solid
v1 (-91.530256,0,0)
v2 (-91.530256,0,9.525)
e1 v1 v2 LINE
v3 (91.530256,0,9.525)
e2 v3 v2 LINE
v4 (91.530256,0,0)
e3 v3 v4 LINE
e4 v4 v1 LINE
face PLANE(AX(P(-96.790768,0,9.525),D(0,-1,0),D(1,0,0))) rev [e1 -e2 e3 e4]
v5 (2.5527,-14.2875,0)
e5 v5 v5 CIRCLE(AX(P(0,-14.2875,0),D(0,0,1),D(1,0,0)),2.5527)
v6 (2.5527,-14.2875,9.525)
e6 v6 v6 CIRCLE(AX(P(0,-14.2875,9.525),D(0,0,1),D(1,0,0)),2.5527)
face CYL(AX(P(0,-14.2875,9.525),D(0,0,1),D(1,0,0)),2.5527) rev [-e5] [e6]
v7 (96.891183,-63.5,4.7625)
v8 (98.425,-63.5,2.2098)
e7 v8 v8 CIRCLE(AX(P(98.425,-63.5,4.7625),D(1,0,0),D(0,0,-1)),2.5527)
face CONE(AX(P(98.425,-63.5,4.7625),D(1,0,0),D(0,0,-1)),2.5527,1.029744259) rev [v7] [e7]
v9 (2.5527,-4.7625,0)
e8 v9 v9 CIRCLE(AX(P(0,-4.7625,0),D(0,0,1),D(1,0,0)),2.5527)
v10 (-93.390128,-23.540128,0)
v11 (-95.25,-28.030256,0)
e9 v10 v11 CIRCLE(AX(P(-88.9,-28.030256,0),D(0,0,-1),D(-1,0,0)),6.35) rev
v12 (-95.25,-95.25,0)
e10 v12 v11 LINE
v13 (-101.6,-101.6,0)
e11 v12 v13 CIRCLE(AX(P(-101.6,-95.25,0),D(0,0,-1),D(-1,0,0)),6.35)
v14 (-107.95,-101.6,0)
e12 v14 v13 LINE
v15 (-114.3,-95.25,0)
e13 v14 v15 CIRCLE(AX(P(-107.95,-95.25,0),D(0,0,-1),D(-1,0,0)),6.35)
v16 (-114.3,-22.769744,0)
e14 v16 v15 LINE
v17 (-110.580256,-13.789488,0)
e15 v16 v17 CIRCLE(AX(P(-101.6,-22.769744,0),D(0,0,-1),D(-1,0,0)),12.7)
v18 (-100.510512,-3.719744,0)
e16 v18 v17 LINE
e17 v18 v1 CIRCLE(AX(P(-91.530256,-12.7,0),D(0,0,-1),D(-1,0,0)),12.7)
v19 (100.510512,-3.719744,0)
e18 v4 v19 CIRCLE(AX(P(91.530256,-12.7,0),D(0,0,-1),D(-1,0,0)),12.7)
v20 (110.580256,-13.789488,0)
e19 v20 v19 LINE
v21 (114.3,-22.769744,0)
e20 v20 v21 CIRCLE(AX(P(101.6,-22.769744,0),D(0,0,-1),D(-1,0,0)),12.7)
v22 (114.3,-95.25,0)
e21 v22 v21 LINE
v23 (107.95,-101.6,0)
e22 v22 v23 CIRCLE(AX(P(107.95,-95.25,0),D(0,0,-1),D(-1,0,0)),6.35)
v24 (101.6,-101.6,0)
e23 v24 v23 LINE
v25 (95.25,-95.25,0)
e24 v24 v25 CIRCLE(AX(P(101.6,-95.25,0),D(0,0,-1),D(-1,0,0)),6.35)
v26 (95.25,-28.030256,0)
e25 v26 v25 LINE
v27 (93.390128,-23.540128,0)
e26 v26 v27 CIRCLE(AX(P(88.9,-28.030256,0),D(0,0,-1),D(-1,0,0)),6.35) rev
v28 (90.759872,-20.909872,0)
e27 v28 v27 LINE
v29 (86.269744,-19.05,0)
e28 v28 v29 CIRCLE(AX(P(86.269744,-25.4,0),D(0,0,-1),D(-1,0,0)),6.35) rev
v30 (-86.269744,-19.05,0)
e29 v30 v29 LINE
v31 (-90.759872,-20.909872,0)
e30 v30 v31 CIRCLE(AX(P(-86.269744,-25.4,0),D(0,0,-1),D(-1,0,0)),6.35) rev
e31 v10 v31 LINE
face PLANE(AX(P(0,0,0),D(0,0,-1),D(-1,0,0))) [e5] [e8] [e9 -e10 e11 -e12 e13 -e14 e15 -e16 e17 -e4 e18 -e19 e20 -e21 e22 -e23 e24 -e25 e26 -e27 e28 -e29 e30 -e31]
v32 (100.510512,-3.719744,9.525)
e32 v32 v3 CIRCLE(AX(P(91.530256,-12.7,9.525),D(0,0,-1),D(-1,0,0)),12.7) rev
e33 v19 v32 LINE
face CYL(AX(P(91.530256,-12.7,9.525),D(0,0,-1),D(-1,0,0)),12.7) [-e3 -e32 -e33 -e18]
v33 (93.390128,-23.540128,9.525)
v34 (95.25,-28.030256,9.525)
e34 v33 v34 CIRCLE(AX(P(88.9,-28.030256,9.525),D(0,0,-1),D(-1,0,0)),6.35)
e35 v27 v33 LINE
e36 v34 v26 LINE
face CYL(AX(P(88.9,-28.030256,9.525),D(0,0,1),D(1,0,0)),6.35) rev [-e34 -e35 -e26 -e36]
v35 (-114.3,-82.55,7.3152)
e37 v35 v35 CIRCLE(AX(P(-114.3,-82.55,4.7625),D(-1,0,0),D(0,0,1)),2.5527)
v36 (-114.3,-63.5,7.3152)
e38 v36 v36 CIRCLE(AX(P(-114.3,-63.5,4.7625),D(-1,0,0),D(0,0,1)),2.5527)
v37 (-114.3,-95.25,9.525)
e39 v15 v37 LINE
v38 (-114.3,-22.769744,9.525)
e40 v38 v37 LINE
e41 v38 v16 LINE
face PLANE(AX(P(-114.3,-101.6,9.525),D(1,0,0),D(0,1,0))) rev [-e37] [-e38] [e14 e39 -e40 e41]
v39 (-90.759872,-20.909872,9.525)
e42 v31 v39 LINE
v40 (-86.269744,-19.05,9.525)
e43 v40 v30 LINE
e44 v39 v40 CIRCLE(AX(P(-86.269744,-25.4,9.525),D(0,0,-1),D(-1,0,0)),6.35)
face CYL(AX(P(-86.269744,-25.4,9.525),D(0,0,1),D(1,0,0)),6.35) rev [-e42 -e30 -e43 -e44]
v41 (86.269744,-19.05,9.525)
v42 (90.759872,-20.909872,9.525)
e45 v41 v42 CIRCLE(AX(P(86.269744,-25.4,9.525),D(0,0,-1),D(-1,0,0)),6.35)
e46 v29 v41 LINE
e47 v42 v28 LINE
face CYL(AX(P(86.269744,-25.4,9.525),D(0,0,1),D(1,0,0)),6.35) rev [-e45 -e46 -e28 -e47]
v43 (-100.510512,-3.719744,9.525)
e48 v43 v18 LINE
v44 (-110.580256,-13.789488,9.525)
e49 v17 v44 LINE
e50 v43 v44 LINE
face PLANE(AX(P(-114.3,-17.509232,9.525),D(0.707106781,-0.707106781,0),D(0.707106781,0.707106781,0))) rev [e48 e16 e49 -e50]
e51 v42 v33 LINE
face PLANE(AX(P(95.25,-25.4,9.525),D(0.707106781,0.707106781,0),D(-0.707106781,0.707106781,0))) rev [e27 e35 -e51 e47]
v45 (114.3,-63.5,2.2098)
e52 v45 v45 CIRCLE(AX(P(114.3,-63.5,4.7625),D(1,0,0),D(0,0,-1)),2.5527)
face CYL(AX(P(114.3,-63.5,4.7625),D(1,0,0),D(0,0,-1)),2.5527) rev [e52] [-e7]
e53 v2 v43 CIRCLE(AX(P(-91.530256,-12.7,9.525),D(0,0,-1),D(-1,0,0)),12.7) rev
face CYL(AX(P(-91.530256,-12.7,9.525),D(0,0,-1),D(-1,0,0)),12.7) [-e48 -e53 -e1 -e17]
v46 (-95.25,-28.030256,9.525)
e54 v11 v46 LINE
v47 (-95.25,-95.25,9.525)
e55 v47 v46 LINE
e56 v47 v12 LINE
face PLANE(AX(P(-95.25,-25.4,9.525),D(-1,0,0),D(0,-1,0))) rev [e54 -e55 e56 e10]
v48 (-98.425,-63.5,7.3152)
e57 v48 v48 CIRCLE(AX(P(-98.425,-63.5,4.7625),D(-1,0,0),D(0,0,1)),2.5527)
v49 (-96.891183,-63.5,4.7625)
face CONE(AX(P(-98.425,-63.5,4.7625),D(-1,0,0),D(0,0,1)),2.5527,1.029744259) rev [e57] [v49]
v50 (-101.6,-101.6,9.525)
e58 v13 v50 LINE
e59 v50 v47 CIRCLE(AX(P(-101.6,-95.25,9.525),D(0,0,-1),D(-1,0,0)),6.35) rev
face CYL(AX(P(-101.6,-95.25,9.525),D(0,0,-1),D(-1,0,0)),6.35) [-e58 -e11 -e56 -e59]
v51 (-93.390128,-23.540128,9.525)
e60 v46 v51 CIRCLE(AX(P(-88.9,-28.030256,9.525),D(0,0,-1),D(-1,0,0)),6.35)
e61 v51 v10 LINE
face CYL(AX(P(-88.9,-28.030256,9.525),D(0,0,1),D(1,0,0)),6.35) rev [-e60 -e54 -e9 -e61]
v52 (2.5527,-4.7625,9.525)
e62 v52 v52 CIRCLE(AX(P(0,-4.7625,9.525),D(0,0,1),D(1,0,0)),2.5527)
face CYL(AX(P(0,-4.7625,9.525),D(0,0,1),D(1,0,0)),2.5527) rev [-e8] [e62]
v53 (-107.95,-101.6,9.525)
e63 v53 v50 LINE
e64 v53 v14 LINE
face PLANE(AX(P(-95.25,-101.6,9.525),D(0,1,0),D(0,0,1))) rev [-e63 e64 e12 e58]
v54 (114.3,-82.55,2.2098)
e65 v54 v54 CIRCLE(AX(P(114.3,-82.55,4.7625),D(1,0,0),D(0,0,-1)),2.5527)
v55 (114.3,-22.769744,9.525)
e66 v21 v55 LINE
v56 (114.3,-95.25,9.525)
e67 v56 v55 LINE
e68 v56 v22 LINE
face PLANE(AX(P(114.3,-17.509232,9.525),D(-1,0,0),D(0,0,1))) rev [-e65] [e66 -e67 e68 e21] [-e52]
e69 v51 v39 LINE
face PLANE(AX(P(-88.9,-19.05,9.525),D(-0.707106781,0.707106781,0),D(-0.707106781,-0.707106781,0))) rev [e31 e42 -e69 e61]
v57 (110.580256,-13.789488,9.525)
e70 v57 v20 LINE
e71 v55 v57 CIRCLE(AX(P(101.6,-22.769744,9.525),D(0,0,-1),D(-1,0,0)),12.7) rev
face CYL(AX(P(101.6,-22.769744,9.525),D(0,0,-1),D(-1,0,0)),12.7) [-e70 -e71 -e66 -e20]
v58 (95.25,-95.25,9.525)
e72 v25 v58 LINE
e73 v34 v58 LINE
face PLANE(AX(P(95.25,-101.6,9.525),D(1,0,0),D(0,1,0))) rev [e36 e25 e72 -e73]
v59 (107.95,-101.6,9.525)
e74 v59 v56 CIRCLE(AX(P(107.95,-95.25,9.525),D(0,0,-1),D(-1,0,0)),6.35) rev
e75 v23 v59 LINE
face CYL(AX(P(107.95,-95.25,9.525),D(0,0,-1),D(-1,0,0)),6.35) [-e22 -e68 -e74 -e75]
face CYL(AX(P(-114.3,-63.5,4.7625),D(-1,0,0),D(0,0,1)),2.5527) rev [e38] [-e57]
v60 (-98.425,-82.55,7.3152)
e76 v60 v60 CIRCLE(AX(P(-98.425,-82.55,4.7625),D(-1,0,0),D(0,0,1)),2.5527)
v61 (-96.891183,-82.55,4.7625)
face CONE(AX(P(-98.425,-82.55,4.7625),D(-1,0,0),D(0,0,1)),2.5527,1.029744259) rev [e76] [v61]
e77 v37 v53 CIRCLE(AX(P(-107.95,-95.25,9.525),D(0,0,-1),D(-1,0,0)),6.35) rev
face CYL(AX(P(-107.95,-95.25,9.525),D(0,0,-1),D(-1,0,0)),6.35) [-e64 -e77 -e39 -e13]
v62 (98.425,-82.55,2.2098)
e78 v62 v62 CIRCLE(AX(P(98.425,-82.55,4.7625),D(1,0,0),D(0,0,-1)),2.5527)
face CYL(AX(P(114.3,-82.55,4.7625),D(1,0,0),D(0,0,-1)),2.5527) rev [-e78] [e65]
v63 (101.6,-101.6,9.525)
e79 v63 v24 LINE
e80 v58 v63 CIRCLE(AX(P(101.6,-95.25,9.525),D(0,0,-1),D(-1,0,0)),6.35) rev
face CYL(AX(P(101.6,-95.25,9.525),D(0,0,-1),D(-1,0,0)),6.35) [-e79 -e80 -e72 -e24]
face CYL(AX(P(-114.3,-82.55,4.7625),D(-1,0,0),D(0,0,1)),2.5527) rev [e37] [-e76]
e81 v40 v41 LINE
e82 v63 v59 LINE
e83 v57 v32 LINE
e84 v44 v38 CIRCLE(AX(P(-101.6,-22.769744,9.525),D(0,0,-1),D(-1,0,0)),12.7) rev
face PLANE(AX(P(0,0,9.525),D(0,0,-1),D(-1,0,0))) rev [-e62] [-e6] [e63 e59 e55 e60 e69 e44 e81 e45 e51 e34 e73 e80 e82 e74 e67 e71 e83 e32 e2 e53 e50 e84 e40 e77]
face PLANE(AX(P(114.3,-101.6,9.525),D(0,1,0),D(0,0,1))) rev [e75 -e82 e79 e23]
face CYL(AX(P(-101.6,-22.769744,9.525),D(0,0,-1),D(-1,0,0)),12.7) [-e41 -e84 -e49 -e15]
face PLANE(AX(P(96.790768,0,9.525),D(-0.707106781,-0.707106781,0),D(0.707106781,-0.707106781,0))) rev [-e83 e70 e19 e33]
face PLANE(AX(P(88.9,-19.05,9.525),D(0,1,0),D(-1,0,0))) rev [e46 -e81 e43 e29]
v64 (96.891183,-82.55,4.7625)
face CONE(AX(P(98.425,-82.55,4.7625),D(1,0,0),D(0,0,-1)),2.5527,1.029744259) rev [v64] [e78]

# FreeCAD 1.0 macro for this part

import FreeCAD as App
import Part
import Sketcher

V = App.Vector
Q = App.Units.Quantity


def edges_at(feature, points):
    """Names of the edges that pass closest to the given points."""
    edges = feature.Shape.Edges
    near = lambda p: min(range(len(edges)), key=lambda i: edges[i].distToShape(Part.Vertex(*p))[0])
    return sorted({f"Edge{near(p) + 1}" for p in points})

doc = App.newDocument("Part")
body = doc.addObject("PartDesign::Body", "Body")

sketch1 = body.newObject("Sketcher::SketchObject", "Sketch")
sketch1.AttachmentSupport = (doc.getObject("XY_Plane"), [""])
sketch1.MapMode = "FlatFace"
sketch1.addGeometry([
    Part.LineSegment(V(-96.790768, 0, 0), V(-114.3, -17.509232, 0)),
    Part.LineSegment(V(-114.3, -17.509232, 0), V(-114.3, -101.6, 0)),
    Part.LineSegment(V(-114.3, -101.6, 0), V(-95.25, -101.6, 0)),
    Part.LineSegment(V(-95.25, -101.6, 0), V(-95.25, -25.4, 0)),
    Part.LineSegment(V(-95.25, -25.4, 0), V(-88.9, -19.05, 0)),
    Part.LineSegment(V(-88.9, -19.05, 0), V(88.9, -19.05, 0)),
    Part.LineSegment(V(88.9, -19.05, 0), V(95.25, -25.4, 0)),
    Part.LineSegment(V(95.25, -25.4, 0), V(95.25, -101.6, 0)),
    Part.LineSegment(V(95.25, -101.6, 0), V(114.3, -101.6, 0)),
    Part.LineSegment(V(114.3, -101.6, 0), V(114.3, -17.509232, 0)),
    Part.LineSegment(V(114.3, -17.509232, 0), V(96.790768, 0, 0)),
    Part.LineSegment(V(96.790768, 0, 0), V(-96.790768, 0, 0)),
], False)
sketch1.addConstraint([
    Sketcher.Constraint("Coincident", 0, 2, 1, 1),
    Sketcher.Constraint("Coincident", 1, 2, 2, 1),
    Sketcher.Constraint("Coincident", 2, 2, 3, 1),
    Sketcher.Constraint("Coincident", 3, 2, 4, 1),
    Sketcher.Constraint("Coincident", 4, 2, 5, 1),
    Sketcher.Constraint("Coincident", 5, 2, 6, 1),
    Sketcher.Constraint("Coincident", 6, 2, 7, 1),
    Sketcher.Constraint("Coincident", 7, 2, 8, 1),
    Sketcher.Constraint("Coincident", 8, 2, 9, 1),
    Sketcher.Constraint("Coincident", 9, 2, 10, 1),
    Sketcher.Constraint("Coincident", 10, 2, 11, 1),
    Sketcher.Constraint("Coincident", 11, 2, 0, 1),
    Sketcher.Constraint("Vertical", 1),
    Sketcher.Constraint("Horizontal", 2),
    Sketcher.Constraint("Vertical", 3),
    Sketcher.Constraint("Horizontal", 5),
    Sketcher.Constraint("Vertical", 7),
    Sketcher.Constraint("Horizontal", 8),
    Sketcher.Constraint("Vertical", 9),
    Sketcher.Constraint("Horizontal", 11),
    Sketcher.Constraint("Symmetric", 10, 2, 11, 2, -1, 1),
    Sketcher.Constraint("Symmetric", 3, 2, 6, 2, -2),
    Sketcher.Constraint("Symmetric", 1, 2, 8, 2, -2),
    Sketcher.Constraint("Parallel", 0, 4),
    Sketcher.Constraint("Perpendicular", 4, 6),
    Sketcher.Constraint("Parallel", 6, 10),
    Sketcher.Constraint("Horizontal", 0, 2, 9, 2),
    Sketcher.Constraint("DistanceX", 5, 1, 5, 2, Q("7 in")),
    Sketcher.Constraint("DistanceY", 3, 1, 3, 2, Q("3 in")),
    Sketcher.Constraint("DistanceY", 1, 2, -1, 1, Q("4 in")),
    Sketcher.Constraint("DistanceX", 0, 2, 4, 2, Q("1 in")),
    Sketcher.Constraint("DistanceX", 2, 1, 2, 2, Q("0.75 in")),
    Sketcher.Constraint("DistanceY", 1, 2, 1, 1, Q("84.090768 mm")),
])
pad1 = body.newObject("PartDesign::Pad", "Pad")
pad1.Profile = sketch1
pad1.Length = Q("0.375 in")
doc.recompute()

fillet = body.newObject("PartDesign::Fillet", "Fillet")
fillet.Base = (pad1, edges_at(pad1, [
    (114.3, -101.6, 4.763),
    (95.25, -101.6, 4.763),
    (95.25, -25.4, 4.763),
    (88.9, -19.05, 4.763),
    (-88.9, -19.05, 4.763),
    (-95.25, -25.4, 4.763),
    (-95.25, -101.6, 4.763),
    (-114.3, -101.6, 4.763),
]))
fillet.Radius = Q("0.25 in")
doc.recompute()

fillet2 = body.newObject("PartDesign::Fillet", "Fillet001")
fillet2.Base = (fillet, edges_at(fillet, [
    (-114.3, -17.509, 4.763),
    (-96.791, 0, 4.763),
    (96.791, 0, 4.763),
    (114.3, -17.509, 4.763),
]))
fillet2.Radius = Q("0.5 in")

sketch2 = body.newObject("Sketcher::SketchObject", "Sketch001")
sketch2.AttachmentSupport = (doc.getObject("XY_Plane"), [""])
sketch2.MapMode = "FlatFace"
sketch2.AttachmentOffset = App.Placement(V(0, 0, 0.375 * 25.4), App.Rotation())
sketch2.addGeometry([
    Part.Circle(V(0, -4.7625, 0), V(0, 0, 1), 2.5527),
    Part.Circle(V(0, -14.2875, 0), V(0, 0, 1), 2.5527),
], False)
sketch2.addConstraint([
    Sketcher.Constraint("Equal", 0, 1),
    Sketcher.Constraint("PointOnObject", 0, 3, -2),
    Sketcher.Constraint("PointOnObject", 1, 3, -2),
    Sketcher.Constraint("Diameter", 0, Q("0.201 in")),
    Sketcher.Constraint("DistanceY", 0, 3, -1, 1, Q("0.1875 in")),
    Sketcher.Constraint("DistanceY", 1, 3, -1, 1, Q("0.5625 in")),
])
doc.recompute()
hole = body.newObject("PartDesign::Hole", "Hole")
hole.Profile = sketch2
hole.ThreadType = "None"
hole.Diameter = Q("0.201 in")
hole.DepthType = "ThroughAll"

sketch3 = body.newObject("Sketcher::SketchObject", "Sketch002")
sketch3.AttachmentSupport = (doc.getObject("XZ_Plane"), [""])
sketch3.MapMode = "FlatFace"
sketch3.AttachmentOffset = App.Placement(V(0, 0, 3.25 * 25.4), App.Rotation())
sketch3.addGeometry([
    Part.LineSegment(V(96.891183, 4.7625, 0), V(114.3, 4.7625, 0)),
    Part.LineSegment(V(114.3, 4.7625, 0), V(114.3, 2.2098, 0)),
    Part.LineSegment(V(114.3, 2.2098, 0), V(98.425, 2.2098, 0)),
    Part.LineSegment(V(98.425, 2.2098, 0), V(96.891183, 4.7625, 0)),
], False)
sketch3.addGeometry(Part.LineSegment(V(114.3, 4.7625, 0), V(96.891183, 4.7625, 0)), True)
sketch3.addConstraint([
    Sketcher.Constraint("Coincident", 0, 2, 1, 1),
    Sketcher.Constraint("Coincident", 1, 2, 2, 1),
    Sketcher.Constraint("Coincident", 2, 2, 3, 1),
    Sketcher.Constraint("Coincident", 3, 2, 0, 1),
    Sketcher.Constraint("Horizontal", 0),
    Sketcher.Constraint("Vertical", 1),
    Sketcher.Constraint("Horizontal", 2),
    Sketcher.Constraint("Horizontal", 4),
    Sketcher.Constraint("Coincident", 4, 1, 0, 2),
    Sketcher.Constraint("Equal", 0, 4),
    Sketcher.Constraint("Angle", 3, Q("121 deg")),
    Sketcher.Constraint("DistanceX", -1, 1, 0, 2, Q("4.5 in")),
    Sketcher.Constraint("DistanceX", 2, 2, 2, 1, Q("0.625 in")),
    Sketcher.Constraint("DistanceY", 1, 2, 1, 1, Q("0.1005 in")),
    Sketcher.Constraint("DistanceY", -1, 1, 0, 2, Q("0.1875 in")),
])
groove = body.newObject("PartDesign::Groove", "Groove")
groove.Profile = sketch3
groove.ReferenceAxis = (sketch3, ["Axis0"])
groove.Angle = 360
doc.recompute()

linearpattern = body.newObject("PartDesign::LinearPattern", "LinearPattern")
linearpattern.Originals = [groove]
linearpattern.Direction = (doc.getObject("Y_Axis"), [""])
linearpattern.Mode = "offset"
linearpattern.Offset = Q("0.75 in")
linearpattern.Occurrences = 2
body.Tip = linearpattern
doc.recompute()

mirrored = body.newObject("PartDesign::Mirrored", "Mirrored")
mirrored.Originals = [groove]
mirrored.MirrorPlane = (doc.getObject("YZ_Plane"), [""])
body.Tip = mirrored

sketch4 = body.newObject("Sketcher::SketchObject", "Sketch003")
sketch4.AttachmentSupport = (doc.getObject("XZ_Plane"), [""])
sketch4.MapMode = "FlatFace"
sketch4.AttachmentOffset = App.Placement(V(0, 0, 2.5 * 25.4), App.Rotation())
sketch4.addGeometry([
    Part.LineSegment(V(-114.3, 4.7625, 0), V(-96.891183, 4.7625, 0)),
    Part.LineSegment(V(-96.891183, 4.7625, 0), V(-98.425, 2.2098, 0)),
    Part.LineSegment(V(-98.425, 2.2098, 0), V(-114.3, 2.2098, 0)),
    Part.LineSegment(V(-114.3, 2.2098, 0), V(-114.3, 4.7625, 0)),
], False)
sketch4.addGeometry(Part.LineSegment(V(-96.891183, 4.7625, 0), V(-114.3, 4.7625, 0)), True)
sketch4.addConstraint([
    Sketcher.Constraint("Coincident", 0, 2, 1, 1),
    Sketcher.Constraint("Coincident", 1, 2, 2, 1),
    Sketcher.Constraint("Coincident", 2, 2, 3, 1),
    Sketcher.Constraint("Coincident", 3, 2, 0, 1),
    Sketcher.Constraint("Horizontal", 0),
    Sketcher.Constraint("Horizontal", 2),
    Sketcher.Constraint("Vertical", 3),
    Sketcher.Constraint("Horizontal", 4),
    Sketcher.Constraint("Coincident", 4, 1, 0, 2),
    Sketcher.Constraint("Vertical", 2, 2, 4, 2),
    Sketcher.Constraint("Angle", 1, Q("-121 deg")),
    Sketcher.Constraint("DistanceX", 2, 2, -1, 1, Q("4.5 in")),
    Sketcher.Constraint("DistanceX", 2, 2, 2, 1, Q("0.625 in")),
    Sketcher.Constraint("DistanceY", 3, 1, 3, 2, Q("0.1005 in")),
    Sketcher.Constraint("DistanceY", -1, 1, 0, 2, Q("0.1875 in")),
])
groove2 = body.newObject("PartDesign::Groove", "Groove001")
groove2.Profile = sketch4
groove2.ReferenceAxis = (sketch4, ["Axis0"])
groove2.Angle = 360

doc.recompute()
